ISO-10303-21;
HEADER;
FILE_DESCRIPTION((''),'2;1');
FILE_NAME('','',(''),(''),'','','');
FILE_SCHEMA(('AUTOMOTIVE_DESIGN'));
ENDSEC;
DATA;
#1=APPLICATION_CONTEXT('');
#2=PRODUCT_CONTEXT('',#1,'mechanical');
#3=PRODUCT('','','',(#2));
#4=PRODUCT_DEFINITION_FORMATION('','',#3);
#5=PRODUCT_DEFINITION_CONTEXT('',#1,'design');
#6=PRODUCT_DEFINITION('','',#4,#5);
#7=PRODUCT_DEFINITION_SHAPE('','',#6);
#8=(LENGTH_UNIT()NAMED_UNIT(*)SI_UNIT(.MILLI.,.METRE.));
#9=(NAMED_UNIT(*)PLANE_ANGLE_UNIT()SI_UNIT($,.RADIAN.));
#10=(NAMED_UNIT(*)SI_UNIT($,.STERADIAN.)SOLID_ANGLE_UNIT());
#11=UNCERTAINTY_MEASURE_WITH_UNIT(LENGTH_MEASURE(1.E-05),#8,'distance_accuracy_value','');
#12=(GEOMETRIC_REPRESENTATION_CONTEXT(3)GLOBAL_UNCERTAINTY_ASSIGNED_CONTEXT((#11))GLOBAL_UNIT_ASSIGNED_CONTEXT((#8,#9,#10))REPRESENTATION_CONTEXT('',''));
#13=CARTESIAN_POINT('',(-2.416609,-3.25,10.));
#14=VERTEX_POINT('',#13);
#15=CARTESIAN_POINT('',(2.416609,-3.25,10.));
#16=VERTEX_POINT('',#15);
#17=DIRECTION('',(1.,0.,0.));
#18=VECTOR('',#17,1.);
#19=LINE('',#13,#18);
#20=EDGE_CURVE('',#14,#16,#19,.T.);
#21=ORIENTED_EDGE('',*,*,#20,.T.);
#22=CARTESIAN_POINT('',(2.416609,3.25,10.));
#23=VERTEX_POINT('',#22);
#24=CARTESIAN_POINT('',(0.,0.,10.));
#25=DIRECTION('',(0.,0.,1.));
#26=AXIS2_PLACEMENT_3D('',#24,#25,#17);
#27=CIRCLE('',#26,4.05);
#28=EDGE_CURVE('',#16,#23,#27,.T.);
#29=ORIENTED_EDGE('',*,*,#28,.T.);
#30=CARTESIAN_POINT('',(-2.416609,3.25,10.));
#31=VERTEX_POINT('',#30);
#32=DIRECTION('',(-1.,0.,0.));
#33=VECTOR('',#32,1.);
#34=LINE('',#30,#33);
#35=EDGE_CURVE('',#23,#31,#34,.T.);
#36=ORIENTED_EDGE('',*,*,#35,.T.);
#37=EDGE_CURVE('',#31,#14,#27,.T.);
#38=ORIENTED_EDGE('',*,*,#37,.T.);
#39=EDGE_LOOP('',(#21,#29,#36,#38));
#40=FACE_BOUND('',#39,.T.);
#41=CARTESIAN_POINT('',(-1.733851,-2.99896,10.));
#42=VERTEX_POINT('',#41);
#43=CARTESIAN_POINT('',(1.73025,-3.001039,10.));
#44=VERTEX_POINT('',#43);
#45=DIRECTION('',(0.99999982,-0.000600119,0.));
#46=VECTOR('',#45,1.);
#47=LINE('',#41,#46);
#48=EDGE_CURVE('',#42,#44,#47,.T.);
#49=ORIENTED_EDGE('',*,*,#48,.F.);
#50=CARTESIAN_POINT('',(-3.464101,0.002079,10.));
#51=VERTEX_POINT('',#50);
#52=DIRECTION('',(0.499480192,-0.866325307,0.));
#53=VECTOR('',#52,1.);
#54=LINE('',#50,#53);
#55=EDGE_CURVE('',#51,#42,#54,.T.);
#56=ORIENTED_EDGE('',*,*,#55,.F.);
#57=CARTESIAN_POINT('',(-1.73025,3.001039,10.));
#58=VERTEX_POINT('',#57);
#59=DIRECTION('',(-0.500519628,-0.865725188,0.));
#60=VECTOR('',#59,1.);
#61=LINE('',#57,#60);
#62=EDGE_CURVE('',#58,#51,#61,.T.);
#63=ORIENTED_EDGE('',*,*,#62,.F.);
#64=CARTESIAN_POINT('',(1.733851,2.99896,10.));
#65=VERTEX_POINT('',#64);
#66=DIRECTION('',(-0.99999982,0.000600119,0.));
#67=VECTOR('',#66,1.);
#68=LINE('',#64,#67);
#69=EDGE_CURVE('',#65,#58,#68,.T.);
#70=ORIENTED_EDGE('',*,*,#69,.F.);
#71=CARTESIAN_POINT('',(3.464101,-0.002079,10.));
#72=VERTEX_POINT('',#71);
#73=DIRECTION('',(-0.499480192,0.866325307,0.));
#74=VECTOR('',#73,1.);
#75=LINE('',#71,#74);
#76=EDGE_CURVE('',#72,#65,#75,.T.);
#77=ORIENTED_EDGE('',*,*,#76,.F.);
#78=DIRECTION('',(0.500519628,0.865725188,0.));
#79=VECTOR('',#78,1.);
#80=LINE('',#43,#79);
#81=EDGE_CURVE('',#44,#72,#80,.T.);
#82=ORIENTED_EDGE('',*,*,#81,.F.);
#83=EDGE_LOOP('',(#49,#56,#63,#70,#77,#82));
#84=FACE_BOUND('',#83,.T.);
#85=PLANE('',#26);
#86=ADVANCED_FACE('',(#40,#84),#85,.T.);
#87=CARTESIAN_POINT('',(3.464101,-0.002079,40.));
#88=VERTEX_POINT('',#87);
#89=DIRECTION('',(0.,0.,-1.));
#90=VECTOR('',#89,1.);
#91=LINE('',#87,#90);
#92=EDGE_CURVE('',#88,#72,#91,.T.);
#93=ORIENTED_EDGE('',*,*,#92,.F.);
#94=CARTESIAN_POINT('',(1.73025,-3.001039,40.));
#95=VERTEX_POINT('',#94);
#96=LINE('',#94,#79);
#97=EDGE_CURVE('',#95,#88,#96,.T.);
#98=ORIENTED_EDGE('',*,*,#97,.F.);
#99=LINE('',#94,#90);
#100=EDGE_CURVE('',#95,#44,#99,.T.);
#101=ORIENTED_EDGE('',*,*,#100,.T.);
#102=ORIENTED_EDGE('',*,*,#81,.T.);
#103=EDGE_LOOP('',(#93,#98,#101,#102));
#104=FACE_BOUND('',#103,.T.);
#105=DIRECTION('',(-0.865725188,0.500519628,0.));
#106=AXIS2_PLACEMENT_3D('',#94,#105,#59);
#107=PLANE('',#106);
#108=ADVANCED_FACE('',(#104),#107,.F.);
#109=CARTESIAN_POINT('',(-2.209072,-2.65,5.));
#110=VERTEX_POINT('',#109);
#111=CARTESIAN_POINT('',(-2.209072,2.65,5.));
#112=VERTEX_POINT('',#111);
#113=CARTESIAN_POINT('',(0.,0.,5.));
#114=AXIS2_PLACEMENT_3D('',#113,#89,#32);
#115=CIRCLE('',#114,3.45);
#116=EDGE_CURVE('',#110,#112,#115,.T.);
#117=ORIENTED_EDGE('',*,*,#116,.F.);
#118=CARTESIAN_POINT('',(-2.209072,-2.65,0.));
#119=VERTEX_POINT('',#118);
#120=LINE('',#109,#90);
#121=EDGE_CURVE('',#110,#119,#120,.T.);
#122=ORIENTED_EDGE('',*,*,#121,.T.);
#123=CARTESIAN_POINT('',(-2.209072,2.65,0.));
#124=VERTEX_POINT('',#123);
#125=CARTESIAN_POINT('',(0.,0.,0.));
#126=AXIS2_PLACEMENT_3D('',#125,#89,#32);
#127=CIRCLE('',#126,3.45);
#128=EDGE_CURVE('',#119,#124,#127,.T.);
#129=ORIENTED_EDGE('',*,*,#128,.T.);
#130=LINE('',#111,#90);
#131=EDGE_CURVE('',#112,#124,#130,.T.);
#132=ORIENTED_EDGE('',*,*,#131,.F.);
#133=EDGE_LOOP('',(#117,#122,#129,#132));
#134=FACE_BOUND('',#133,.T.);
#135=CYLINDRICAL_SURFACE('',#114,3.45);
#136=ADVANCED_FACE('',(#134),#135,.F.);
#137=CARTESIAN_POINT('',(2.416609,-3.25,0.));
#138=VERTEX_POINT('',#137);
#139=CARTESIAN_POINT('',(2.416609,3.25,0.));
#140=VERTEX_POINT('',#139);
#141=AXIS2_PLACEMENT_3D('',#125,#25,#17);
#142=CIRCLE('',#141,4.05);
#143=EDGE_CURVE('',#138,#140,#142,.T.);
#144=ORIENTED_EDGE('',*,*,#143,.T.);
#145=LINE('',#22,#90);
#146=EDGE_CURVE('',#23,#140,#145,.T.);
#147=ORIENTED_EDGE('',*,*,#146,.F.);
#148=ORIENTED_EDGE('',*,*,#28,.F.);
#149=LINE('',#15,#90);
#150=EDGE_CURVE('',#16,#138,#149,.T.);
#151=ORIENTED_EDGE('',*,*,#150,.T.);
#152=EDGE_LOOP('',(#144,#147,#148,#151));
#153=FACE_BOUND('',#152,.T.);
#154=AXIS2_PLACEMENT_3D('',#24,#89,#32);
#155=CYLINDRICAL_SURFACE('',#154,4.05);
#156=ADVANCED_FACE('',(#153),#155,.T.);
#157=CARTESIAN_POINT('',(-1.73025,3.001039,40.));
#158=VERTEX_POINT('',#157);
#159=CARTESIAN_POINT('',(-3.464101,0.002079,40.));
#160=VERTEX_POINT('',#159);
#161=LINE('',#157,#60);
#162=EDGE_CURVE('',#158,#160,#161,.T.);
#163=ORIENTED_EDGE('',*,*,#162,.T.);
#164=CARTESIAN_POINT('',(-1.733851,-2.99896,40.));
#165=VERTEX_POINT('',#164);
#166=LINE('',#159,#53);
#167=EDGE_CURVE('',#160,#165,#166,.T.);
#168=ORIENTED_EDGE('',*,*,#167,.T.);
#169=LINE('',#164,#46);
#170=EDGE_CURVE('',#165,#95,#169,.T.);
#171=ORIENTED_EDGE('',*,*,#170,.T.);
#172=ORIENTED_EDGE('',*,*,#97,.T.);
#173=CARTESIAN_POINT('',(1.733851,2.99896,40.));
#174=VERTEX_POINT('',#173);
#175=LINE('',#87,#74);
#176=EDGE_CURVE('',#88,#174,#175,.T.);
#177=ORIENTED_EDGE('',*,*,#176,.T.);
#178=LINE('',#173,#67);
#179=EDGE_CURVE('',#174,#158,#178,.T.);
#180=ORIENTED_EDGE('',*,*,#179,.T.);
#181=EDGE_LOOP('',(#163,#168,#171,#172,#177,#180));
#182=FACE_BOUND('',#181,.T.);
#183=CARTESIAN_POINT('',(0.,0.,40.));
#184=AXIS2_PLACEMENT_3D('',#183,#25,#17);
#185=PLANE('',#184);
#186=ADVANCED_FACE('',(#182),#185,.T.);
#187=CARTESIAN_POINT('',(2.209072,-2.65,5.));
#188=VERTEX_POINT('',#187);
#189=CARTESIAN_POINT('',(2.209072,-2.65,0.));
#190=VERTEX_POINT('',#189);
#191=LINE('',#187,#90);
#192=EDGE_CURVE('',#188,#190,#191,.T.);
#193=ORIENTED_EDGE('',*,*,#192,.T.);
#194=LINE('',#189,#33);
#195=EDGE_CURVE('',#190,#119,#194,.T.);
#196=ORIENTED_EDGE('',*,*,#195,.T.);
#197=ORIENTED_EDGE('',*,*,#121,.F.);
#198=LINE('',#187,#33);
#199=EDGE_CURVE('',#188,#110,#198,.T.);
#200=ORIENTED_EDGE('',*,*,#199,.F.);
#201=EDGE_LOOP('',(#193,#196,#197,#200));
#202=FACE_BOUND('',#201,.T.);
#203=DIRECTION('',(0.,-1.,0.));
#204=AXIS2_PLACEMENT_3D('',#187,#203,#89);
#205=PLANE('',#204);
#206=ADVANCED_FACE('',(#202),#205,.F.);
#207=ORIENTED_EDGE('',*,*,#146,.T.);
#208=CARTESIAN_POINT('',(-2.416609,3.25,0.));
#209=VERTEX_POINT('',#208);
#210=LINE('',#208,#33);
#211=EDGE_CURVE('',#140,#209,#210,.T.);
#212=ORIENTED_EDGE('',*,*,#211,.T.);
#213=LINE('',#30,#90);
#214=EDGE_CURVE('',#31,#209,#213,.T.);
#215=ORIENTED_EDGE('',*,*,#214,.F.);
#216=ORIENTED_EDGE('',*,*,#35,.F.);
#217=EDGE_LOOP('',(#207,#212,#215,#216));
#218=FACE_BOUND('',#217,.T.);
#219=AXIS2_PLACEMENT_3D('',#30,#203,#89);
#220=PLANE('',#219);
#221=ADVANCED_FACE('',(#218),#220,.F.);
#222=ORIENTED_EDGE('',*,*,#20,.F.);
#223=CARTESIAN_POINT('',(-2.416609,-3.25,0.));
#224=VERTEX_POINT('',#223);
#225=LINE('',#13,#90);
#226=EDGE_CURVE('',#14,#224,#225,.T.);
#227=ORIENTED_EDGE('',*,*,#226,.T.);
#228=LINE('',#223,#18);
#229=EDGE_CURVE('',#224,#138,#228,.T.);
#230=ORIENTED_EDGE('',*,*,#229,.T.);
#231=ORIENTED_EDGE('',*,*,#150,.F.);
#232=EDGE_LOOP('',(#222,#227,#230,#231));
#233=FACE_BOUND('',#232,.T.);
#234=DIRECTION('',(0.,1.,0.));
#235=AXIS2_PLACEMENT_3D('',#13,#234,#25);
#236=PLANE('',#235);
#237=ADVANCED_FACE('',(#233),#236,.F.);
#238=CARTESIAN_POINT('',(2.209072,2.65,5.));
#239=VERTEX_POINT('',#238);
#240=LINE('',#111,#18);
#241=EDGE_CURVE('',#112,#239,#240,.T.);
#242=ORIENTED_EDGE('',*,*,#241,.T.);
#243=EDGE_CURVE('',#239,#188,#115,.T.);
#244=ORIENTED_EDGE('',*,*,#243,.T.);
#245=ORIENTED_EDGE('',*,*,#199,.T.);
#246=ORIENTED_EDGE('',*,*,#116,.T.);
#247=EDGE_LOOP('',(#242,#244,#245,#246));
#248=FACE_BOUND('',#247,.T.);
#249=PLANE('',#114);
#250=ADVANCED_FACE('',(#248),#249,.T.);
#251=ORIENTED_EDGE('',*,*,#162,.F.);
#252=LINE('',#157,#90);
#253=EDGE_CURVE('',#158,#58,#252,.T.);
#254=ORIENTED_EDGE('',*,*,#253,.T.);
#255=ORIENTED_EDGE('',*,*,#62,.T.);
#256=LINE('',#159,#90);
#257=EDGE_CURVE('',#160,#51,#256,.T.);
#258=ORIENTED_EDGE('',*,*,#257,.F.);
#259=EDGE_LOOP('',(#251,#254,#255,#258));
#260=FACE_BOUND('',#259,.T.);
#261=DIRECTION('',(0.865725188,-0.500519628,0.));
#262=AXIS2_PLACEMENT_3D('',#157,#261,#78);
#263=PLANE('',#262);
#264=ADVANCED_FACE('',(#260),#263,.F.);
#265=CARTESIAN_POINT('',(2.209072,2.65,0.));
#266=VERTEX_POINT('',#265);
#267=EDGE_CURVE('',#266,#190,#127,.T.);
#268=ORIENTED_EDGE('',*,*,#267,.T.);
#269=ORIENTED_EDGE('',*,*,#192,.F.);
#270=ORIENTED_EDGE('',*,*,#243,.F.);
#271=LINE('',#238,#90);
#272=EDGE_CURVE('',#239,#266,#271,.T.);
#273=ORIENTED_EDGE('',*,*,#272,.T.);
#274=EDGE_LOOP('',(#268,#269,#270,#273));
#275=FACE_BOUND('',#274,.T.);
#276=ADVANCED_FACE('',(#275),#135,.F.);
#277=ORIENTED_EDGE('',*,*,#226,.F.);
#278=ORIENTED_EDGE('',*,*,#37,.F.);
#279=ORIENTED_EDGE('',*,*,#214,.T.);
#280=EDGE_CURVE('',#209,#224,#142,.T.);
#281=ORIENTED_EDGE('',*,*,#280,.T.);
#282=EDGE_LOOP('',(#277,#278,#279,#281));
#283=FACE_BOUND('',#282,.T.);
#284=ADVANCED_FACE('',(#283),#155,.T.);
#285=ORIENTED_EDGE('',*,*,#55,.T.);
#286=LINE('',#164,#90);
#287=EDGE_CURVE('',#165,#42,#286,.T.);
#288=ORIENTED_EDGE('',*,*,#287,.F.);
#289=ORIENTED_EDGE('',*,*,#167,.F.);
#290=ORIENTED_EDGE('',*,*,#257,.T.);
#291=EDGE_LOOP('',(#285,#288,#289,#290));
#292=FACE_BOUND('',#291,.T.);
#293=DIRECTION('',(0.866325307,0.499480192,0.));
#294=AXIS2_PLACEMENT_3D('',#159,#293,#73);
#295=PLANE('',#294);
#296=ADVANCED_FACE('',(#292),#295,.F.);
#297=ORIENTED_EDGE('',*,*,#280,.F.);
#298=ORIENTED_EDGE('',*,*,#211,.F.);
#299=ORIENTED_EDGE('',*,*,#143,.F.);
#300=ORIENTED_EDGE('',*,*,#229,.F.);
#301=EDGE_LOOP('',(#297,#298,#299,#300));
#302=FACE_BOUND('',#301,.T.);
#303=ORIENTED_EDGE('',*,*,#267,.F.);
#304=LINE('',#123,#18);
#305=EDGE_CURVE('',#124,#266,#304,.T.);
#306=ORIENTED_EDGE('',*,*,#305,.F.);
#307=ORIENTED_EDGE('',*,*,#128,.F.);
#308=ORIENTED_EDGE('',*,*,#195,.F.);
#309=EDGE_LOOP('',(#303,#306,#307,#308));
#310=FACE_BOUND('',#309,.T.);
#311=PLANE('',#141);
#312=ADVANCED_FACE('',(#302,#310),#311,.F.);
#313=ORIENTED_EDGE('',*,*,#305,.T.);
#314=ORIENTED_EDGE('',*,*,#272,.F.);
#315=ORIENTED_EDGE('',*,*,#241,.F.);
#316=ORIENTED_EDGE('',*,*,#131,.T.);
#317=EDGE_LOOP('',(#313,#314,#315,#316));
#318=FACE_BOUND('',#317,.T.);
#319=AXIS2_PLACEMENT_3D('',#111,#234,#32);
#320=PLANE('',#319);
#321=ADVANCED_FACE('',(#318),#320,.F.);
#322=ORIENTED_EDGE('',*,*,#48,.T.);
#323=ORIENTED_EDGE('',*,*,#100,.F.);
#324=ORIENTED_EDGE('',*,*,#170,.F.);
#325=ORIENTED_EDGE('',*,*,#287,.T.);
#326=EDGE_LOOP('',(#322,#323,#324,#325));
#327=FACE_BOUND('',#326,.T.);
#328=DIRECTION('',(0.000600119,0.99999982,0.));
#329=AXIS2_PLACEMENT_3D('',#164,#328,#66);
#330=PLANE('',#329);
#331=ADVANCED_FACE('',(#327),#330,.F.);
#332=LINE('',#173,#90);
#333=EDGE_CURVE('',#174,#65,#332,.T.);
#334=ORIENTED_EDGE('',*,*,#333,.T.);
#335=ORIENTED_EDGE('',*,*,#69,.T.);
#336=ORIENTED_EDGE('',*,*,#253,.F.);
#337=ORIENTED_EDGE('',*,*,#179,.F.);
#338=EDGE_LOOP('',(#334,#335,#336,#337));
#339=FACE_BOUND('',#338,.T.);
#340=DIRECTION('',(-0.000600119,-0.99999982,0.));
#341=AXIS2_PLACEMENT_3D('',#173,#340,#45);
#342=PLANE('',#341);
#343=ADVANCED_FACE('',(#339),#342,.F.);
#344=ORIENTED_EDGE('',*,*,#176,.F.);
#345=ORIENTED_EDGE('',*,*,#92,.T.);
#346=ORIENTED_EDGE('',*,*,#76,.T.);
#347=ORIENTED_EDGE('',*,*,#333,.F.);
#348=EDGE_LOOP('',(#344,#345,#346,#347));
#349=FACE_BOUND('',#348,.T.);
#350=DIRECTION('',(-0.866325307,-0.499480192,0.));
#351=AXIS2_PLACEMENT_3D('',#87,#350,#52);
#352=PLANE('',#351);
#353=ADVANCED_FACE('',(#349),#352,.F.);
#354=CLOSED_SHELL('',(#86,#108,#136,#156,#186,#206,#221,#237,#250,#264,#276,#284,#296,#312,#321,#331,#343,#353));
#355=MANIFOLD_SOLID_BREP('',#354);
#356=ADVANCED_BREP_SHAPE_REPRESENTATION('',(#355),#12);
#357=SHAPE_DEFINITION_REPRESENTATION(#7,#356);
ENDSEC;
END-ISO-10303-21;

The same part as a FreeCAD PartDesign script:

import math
import FreeCAD as App
import Part
import Sketcher

V = App.Vector
Q = App.Units.Quantity


def add_polygon(sketch, points):
    """Adds a closed chain of lines whose ends are joined by coincident constraints."""
    first, n = sketch.GeometryCount, len(points)
    for a, b in zip(points, points[1:] + points[:1]):
        sketch.addGeometry(Part.LineSegment(App.Vector(*a, 0), App.Vector(*b, 0)), False)
    for i in range(n):
        sketch.addConstraint(Sketcher.Constraint("Coincident", first + i, 2, first + (i + 1) % n, 1))

doc = App.newDocument("Part")
params = doc.addObject("Spreadsheet::Sheet", "Params")
for row, (alias, value) in enumerate([
    ("sketch1_radius", "4.05 mm"),
    ("pad1_length", "10 mm"),
    ("pad2_length", "30 mm"),
    ("sketch3_radius", "3.45 mm"),
    ("pocket1_length", "5 mm"),
], start=1):
    params.set(f"A{row}", alias)
    params.set(f"B{row}", "=" + value)
    params.setAlias(f"B{row}", alias)

body = doc.addObject("PartDesign::Body", "Body")

# Sketch on XY plane
sketch1 = body.newObject("Sketcher::SketchObject", "Sketch")
sketch1.AttachmentSupport = (doc.getObject("XY_Plane"), [""])
sketch1.MapMode = "FlatFace"
sketch1.addGeometry([
    Part.LineSegment(V(2.4, 3.2, 0), V(-2.4, 3.2, 0)),
    Part.ArcOfCircle(Part.Circle(V(0, 0, 0), V(0, 0, 1), 4), math.radians(127), math.radians(233)),
    Part.LineSegment(V(-2.4, -3.2, 0), V(2.4, -3.2, 0)),
    Part.ArcOfCircle(Part.Circle(V(0, 0, 0), V(0, 0, 1), 4), math.radians(-53), math.radians(53)),
], False)
sketch1.addConstraint([
    Sketcher.Constraint("Coincident", 0, 2, 1, 1),
    Sketcher.Constraint("Coincident", 1, 2, 2, 1),
    Sketcher.Constraint("Coincident", 2, 2, 3, 1),
    Sketcher.Constraint("Coincident", 3, 2, 0, 1),
    Sketcher.Constraint("Horizontal", 0),
    Sketcher.Constraint("Horizontal", 2),
    Sketcher.Constraint("Coincident", 1, 3, -1, 1),
    Sketcher.Constraint("Coincident", 3, 3, -1, 1),
    Sketcher.Constraint("Equal", 1, 3),
    Sketcher.Constraint("Vertical", 0, 2, 1, 2),
    Sketcher.Constraint("Radius", 1, Q("4.05 mm")),
    Sketcher.Constraint("DistanceY", 1, 2, 0, 2, Q("6.5 mm")),
])
sketch1.setExpression("Constraints[10]", "Params.sketch1_radius")
pad1 = body.newObject("PartDesign::Pad", "Pad")
pad1.Profile = sketch1
pad1.setExpression("Length", "Params.pad1_length")

# Sketch on XY plane
sketch2 = body.newObject("Sketcher::SketchObject", "Sketch001")
sketch2.AttachmentSupport = (doc.getObject("XY_Plane"), [""])
sketch2.MapMode = "FlatFace"
sketch2.AttachmentOffset = App.Placement(V(0, 0, 10), App.Rotation())
add_polygon(sketch2, [(1.7, -3), (3.5, 0), (1.7, 3), (-1.7, 3), (-3.5, 0), (-1.7, -3)])  # lines 0-5
sketch2.addConstraint([
    Sketcher.Constraint("Symmetric", 0, 2, 3, 2, -1, 1),
    Sketcher.Constraint("Symmetric", 1, 2, 4, 2, -1, 1),
    Sketcher.Constraint("Symmetric", 2, 2, 5, 2, -1, 1),
    Sketcher.Constraint("Equal", 0, 1),
    Sketcher.Constraint("Equal", 1, 2),
    Sketcher.Constraint("DistanceY", 4, 2, 2, 2, Q("5.999999 mm")),
    Sketcher.Constraint("Distance", 0, Q("3.464102 mm")),
    Sketcher.Constraint("DistanceX", 4, 2, 2, 2, Q("0.003601 mm")),
    Sketcher.Constraint("DistanceY", 0, 2, -1, 1, Q("0.002079 mm")),
])
pad2 = body.newObject("PartDesign::Pad", "Pad001")
pad2.Profile = sketch2
pad2.setExpression("Length", "Params.pad2_length")

# Sketch on XY plane
sketch3 = body.newObject("Sketcher::SketchObject", "Sketch002")
sketch3.AttachmentSupport = (doc.getObject("XY_Plane"), [""])
sketch3.MapMode = "FlatFace"
sketch3.addGeometry([
    Part.LineSegment(V(-2.2, 2.6, 0), V(2.2, 2.6, 0)),
    Part.ArcOfCircle(Part.Circle(V(0, 0, 0), V(0, 0, 1), 3.4), math.radians(-50), math.radians(50)),
    Part.LineSegment(V(2.2, -2.6, 0), V(-2.2, -2.6, 0)),
    Part.ArcOfCircle(Part.Circle(V(0, 0, 0), V(0, 0, 1), 3.4), math.radians(130), math.radians(230)),
], False)
sketch3.addConstraint([
    Sketcher.Constraint("Coincident", 0, 2, 1, 2),
    Sketcher.Constraint("Coincident", 1, 1, 2, 1),
    Sketcher.Constraint("Coincident", 2, 2, 3, 2),
    Sketcher.Constraint("Coincident", 3, 1, 0, 1),
    Sketcher.Constraint("Horizontal", 0),
    Sketcher.Constraint("Horizontal", 2),
    Sketcher.Constraint("Coincident", 1, 3, -1, 1),
    Sketcher.Constraint("Coincident", 3, 3, -1, 1),
    Sketcher.Constraint("Equal", 1, 3),
    Sketcher.Constraint("Vertical", 0, 2, 1, 1),
    Sketcher.Constraint("Radius", 1, Q("3.45 mm")),
    Sketcher.Constraint("DistanceY", 1, 1, 0, 2, Q("5.3 mm")),
])
sketch3.setExpression("Constraints[10]", "Params.sketch3_radius")
pocket1 = body.newObject("PartDesign::Pocket", "Pocket")
pocket1.Profile = sketch3
pocket1.setExpression("Length", "Params.pocket1_length")
pocket1.Reversed = True

doc.recompute()
